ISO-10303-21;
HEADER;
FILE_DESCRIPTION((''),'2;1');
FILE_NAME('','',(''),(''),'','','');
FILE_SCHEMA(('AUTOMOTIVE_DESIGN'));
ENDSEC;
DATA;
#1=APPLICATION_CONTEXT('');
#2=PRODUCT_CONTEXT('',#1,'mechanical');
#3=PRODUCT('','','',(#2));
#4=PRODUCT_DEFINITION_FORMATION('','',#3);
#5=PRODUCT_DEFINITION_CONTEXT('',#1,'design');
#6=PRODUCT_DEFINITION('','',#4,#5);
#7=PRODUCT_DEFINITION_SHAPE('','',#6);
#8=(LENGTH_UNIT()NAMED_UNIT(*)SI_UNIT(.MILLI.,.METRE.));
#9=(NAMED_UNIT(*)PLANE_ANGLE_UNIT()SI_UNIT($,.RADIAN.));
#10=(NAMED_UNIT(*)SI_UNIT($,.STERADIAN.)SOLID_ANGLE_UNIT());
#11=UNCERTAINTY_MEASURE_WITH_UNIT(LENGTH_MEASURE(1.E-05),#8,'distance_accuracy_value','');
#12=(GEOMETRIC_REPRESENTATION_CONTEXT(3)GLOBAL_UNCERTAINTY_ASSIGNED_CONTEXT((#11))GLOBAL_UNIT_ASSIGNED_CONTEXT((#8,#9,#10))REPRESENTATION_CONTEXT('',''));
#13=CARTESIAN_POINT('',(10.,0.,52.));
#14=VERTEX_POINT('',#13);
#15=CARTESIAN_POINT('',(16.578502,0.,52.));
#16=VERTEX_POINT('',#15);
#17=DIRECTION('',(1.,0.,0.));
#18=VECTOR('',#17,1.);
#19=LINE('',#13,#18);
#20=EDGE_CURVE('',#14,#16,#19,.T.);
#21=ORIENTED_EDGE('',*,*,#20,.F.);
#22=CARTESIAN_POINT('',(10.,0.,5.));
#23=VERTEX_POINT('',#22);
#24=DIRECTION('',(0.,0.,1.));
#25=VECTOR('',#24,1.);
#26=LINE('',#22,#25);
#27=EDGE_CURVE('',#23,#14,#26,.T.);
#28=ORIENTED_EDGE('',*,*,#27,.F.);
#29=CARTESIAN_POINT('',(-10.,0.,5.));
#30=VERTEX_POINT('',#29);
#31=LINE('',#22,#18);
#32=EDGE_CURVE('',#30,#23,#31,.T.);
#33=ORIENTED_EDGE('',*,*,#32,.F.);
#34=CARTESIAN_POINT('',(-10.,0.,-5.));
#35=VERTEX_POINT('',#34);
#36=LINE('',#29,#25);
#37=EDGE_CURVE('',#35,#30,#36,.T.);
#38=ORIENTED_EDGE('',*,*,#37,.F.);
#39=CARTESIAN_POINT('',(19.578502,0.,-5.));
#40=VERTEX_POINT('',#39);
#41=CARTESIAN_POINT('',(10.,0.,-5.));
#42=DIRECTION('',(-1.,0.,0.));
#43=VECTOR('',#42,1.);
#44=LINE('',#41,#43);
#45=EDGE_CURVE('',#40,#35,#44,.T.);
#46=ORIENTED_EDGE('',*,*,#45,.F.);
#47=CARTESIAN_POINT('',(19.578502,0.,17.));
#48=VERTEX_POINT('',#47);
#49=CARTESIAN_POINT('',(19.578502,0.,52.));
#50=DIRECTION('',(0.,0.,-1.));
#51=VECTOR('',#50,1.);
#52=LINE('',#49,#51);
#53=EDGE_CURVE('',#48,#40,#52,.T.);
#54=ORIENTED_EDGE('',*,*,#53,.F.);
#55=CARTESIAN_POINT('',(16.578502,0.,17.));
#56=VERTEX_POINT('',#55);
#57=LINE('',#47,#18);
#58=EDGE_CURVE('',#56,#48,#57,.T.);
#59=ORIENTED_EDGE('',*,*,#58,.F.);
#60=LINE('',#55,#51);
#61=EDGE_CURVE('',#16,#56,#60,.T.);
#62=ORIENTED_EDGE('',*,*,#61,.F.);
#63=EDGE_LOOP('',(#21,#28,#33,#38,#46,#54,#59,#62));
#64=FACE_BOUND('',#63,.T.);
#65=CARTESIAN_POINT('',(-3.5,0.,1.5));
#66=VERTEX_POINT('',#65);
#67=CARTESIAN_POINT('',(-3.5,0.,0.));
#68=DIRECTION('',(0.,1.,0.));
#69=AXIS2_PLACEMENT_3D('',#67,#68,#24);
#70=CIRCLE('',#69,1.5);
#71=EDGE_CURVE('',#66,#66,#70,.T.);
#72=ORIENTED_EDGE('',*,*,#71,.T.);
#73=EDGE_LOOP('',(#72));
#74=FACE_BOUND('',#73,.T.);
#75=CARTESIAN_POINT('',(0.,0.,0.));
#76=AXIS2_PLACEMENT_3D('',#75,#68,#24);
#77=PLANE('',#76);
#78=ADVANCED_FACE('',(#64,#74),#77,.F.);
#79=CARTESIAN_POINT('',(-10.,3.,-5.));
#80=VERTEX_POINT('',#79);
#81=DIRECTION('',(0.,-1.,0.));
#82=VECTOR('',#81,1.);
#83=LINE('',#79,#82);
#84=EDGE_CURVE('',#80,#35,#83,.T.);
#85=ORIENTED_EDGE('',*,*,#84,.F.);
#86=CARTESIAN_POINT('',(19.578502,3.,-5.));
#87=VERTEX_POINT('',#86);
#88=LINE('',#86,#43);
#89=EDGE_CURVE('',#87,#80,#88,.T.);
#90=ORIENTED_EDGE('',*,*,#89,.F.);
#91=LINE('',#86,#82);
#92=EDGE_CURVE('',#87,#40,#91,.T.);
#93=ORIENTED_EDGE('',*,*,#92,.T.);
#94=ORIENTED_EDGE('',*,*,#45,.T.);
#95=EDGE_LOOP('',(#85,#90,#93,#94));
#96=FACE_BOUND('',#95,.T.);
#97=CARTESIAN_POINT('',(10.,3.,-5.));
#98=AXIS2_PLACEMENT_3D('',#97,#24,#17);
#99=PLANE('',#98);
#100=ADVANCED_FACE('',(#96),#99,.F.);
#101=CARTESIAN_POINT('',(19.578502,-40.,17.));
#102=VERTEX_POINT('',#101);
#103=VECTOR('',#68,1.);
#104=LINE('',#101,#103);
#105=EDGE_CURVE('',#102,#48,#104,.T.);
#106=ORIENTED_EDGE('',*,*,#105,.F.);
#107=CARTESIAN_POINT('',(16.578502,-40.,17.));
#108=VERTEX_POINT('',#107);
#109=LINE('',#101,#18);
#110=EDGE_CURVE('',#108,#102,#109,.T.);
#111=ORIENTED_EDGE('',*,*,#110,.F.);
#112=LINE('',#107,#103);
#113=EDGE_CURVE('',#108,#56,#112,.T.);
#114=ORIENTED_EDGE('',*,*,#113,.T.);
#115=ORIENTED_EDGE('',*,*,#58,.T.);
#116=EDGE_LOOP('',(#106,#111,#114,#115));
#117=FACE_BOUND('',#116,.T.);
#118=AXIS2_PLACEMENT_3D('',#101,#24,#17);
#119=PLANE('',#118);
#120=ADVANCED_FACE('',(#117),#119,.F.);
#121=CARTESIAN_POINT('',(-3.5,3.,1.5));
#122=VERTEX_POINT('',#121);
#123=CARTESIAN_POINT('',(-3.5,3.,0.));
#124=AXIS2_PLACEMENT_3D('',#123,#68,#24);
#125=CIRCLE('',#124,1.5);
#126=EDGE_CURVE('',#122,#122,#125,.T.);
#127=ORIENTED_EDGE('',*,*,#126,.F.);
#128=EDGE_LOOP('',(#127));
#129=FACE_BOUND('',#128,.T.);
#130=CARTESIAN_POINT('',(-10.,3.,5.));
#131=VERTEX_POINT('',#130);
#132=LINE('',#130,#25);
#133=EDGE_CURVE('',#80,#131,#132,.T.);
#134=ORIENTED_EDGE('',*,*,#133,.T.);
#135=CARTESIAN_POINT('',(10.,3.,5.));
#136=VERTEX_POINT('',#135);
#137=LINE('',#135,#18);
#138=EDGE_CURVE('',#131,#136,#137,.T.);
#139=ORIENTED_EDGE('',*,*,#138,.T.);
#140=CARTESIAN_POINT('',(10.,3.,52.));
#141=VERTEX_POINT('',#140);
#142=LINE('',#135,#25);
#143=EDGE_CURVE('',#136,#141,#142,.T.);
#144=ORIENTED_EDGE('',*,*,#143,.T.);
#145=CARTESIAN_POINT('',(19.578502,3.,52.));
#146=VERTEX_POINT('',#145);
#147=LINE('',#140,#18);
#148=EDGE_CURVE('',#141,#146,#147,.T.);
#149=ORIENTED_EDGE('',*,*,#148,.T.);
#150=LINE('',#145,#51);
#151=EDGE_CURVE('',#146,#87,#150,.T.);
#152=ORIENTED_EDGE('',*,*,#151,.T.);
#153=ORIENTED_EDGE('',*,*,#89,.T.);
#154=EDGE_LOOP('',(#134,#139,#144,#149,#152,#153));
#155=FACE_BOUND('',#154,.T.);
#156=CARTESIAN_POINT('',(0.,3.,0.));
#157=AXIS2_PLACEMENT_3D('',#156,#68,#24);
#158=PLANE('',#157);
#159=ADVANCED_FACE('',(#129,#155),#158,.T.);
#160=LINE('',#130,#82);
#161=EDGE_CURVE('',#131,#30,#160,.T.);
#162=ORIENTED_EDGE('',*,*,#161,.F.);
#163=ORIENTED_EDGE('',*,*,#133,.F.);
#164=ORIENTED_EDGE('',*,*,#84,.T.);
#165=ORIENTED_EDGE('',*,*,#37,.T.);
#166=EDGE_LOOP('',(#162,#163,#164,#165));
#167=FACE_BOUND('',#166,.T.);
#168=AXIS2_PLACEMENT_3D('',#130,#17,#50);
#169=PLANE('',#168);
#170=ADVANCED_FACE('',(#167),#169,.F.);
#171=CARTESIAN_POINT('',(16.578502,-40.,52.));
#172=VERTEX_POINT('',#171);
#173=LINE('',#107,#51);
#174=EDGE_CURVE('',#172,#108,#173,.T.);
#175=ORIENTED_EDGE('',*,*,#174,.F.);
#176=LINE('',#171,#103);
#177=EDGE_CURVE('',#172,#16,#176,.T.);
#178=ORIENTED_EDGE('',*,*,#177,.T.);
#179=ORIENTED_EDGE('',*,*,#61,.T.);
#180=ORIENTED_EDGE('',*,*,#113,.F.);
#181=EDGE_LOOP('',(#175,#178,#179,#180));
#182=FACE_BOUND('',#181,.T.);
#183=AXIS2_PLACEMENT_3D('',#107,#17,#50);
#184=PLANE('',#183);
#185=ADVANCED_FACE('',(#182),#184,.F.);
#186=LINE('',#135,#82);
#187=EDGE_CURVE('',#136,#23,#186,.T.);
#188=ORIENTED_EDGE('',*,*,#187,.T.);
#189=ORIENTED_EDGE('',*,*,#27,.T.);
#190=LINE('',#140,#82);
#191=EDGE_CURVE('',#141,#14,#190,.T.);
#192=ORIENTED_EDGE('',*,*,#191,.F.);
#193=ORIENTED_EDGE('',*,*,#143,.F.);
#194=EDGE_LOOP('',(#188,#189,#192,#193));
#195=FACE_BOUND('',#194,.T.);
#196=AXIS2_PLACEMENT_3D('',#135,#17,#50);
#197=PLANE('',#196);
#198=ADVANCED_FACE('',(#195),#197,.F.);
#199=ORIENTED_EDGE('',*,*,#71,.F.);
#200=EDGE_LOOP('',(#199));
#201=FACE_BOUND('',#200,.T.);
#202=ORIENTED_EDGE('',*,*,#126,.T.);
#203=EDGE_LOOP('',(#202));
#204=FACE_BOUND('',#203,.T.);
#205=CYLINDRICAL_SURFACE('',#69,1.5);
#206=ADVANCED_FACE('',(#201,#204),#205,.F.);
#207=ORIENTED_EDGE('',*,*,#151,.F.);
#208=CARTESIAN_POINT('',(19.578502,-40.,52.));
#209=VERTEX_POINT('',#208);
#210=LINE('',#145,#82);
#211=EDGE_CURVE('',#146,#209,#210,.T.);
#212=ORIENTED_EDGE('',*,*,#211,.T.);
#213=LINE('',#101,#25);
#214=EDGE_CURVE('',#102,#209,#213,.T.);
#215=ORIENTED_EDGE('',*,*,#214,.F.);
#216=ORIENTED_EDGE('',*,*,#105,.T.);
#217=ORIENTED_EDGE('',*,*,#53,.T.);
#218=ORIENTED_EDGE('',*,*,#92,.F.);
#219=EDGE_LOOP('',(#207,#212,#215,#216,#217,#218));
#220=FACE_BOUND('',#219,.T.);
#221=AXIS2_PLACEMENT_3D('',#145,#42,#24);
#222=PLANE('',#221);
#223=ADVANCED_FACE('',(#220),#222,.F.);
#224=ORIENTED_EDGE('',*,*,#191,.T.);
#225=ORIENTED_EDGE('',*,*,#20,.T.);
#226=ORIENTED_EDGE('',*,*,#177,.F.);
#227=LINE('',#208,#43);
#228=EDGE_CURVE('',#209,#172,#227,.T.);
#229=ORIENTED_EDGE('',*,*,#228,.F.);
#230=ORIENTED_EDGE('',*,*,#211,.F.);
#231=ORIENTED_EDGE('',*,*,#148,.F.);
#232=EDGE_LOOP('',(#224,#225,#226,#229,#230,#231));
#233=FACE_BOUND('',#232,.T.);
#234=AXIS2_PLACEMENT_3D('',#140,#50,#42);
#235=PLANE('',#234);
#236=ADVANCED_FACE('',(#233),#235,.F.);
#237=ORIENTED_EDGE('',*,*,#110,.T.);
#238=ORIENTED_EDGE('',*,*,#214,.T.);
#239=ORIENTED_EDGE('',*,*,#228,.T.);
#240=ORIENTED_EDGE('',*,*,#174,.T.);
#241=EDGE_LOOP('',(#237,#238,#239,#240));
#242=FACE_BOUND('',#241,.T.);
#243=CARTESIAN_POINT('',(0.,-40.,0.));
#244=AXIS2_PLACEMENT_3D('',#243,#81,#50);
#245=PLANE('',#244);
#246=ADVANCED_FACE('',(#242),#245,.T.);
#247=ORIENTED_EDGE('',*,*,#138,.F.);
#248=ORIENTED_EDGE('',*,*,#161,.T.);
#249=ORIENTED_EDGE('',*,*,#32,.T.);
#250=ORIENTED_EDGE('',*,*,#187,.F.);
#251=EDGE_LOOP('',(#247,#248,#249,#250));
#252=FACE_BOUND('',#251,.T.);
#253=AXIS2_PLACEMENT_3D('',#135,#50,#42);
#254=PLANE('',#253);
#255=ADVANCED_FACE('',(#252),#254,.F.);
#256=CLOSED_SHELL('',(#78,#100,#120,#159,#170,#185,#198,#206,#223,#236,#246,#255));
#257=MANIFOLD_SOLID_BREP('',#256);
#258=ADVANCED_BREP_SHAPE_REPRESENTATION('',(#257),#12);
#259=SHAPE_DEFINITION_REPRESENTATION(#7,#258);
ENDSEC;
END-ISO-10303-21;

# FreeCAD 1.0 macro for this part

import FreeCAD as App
import Part
import Sketcher

V = App.Vector


def add_polygon(sketch, points):
    """Adds a closed chain of lines whose ends are joined by coincident constraints."""
    first, n = sketch.GeometryCount, len(points)
    for a, b in zip(points, points[1:] + points[:1]):
        sketch.addGeometry(Part.LineSegment(App.Vector(*a, 0), App.Vector(*b, 0)), False)
    for i in range(n):
        sketch.addConstraint(Sketcher.Constraint("Coincident", first + i, 2, first + (i + 1) % n, 1))

doc = App.newDocument("Part")
params = doc.addObject("Spreadsheet::Sheet", "Params")
for row, (alias, value) in enumerate([
    ("sketch1_width", "20 mm"),
    ("sketch1_height", "47 mm"),
    ("sketch1_height2", "57 mm"),
    ("pad1_length", "3 mm"),
    ("sketch2_diameter", "3 mm"),
    ("pocket1_length", "3 mm"),
    ("sketch3_width", "3 mm"),
    ("sketch3_height", "35 mm"),
    ("pad2_length", "40 mm"),
], start=1):
    params.set(f"A{row}", alias)
    params.set(f"B{row}", "=" + value)
    params.setAlias(f"B{row}", alias)

body = doc.addObject("PartDesign::Body", "Body")

# Sketch on XZ plane
sketch1 = doc.addObject("Sketcher::SketchObject", "Sketch")
body.addObject(sketch1)
sketch1.AttachmentSupport = (doc.XZ_Plane, [""])
sketch1.MapMode = "FlatFace"
add_polygon(sketch1, [(10, 5), (10, 52), (19.578502, 52), (19.578502, -5), (-10, -5), (-10, 5)])  # lines 0-5
sketch1.addConstraint([
    Sketcher.Constraint("Vertical", 0),
    Sketcher.Constraint("Horizontal", 1),
    Sketcher.Constraint("Vertical", 2),
    Sketcher.Constraint("Horizontal", 3),
    Sketcher.Constraint("Vertical", 4),
    Sketcher.Constraint("Horizontal", 5),
    Sketcher.Constraint("Symmetric", 3, 2, 5, 2, -1, 1),
    Sketcher.Constraint("DistanceX", 5, 1, 5, 2, 20.0),
    Sketcher.Constraint("DistanceY", 0, 1, 0, 2, 47.0),
    Sketcher.Constraint("DistanceY", 2, 2, 2, 1, 57.0),
    Sketcher.Constraint("DistanceX", 1, 1, 1, 2, 9.578502),
])
sketch1.setExpression("Constraints[13]", "Params.sketch1_width")
sketch1.setExpression("Constraints[14]", "Params.sketch1_height")
sketch1.setExpression("Constraints[15]", "Params.sketch1_height2")
pad1 = doc.addObject("PartDesign::Pad", "Pad")
body.addObject(pad1)
pad1.Profile = sketch1
pad1.setExpression("Length", "Params.pad1_length")
pad1.Reversed = True

# Sketch on XZ plane
sketch2 = doc.addObject("Sketcher::SketchObject", "Sketch001")
body.addObject(sketch2)
sketch2.AttachmentSupport = (doc.XZ_Plane, [""])
sketch2.MapMode = "FlatFace"
sketch2.AttachmentOffset = App.Placement(V(0, 0, -3), App.Rotation())
sketch2.addGeometry(Part.Circle(V(-3.5, 0, 0), V(0, 0, 1), 1.5), False)
sketch2.addConstraint([
    Sketcher.Constraint("PointOnObject", 0, 3, -1),
    Sketcher.Constraint("Diameter", 0, 3.0),
    Sketcher.Constraint("DistanceX", 0, 3, -1, 1, 3.5),
])
sketch2.setExpression("Constraints[1]", "Params.sketch2_diameter")
pocket1 = doc.addObject("PartDesign::Pocket", "Pocket")
body.addObject(pocket1)
pocket1.Profile = sketch2
pocket1.setExpression("Length", "Params.pocket1_length")
pocket1.Reversed = True

# Sketch on XZ plane
sketch3 = doc.addObject("Sketcher::SketchObject", "Sketch002")
body.addObject(sketch3)
sketch3.AttachmentSupport = (doc.XZ_Plane, [""])
sketch3.MapMode = "FlatFace"
add_polygon(sketch3, [(16.578502, 52), (16.578502, 17), (19.578502, 17), (19.578502, 52)])  # lines 0-3
sketch3.addConstraint([
    Sketcher.Constraint("Vertical", 0),
    Sketcher.Constraint("Horizontal", 1),
    Sketcher.Constraint("Vertical", 2),
    Sketcher.Constraint("Horizontal", 3),
    Sketcher.Constraint("DistanceX", 1, 1, 1, 2, 3.0),
    Sketcher.Constraint("DistanceY", 0, 2, 0, 1, 35.0),
    Sketcher.Constraint("DistanceY", -1, 1, 0, 2, 17.0),
    Sketcher.Constraint("DistanceX", -1, 1, 0, 2, 16.578502),
])
sketch3.setExpression("Constraints[8]", "Params.sketch3_width")
sketch3.setExpression("Constraints[9]", "Params.sketch3_height")
pad2 = doc.addObject("PartDesign::Pad", "Pad001")
body.addObject(pad2)
pad2.Profile = sketch3
pad2.setExpression("Length", "Params.pad2_length")

doc.recompute()
